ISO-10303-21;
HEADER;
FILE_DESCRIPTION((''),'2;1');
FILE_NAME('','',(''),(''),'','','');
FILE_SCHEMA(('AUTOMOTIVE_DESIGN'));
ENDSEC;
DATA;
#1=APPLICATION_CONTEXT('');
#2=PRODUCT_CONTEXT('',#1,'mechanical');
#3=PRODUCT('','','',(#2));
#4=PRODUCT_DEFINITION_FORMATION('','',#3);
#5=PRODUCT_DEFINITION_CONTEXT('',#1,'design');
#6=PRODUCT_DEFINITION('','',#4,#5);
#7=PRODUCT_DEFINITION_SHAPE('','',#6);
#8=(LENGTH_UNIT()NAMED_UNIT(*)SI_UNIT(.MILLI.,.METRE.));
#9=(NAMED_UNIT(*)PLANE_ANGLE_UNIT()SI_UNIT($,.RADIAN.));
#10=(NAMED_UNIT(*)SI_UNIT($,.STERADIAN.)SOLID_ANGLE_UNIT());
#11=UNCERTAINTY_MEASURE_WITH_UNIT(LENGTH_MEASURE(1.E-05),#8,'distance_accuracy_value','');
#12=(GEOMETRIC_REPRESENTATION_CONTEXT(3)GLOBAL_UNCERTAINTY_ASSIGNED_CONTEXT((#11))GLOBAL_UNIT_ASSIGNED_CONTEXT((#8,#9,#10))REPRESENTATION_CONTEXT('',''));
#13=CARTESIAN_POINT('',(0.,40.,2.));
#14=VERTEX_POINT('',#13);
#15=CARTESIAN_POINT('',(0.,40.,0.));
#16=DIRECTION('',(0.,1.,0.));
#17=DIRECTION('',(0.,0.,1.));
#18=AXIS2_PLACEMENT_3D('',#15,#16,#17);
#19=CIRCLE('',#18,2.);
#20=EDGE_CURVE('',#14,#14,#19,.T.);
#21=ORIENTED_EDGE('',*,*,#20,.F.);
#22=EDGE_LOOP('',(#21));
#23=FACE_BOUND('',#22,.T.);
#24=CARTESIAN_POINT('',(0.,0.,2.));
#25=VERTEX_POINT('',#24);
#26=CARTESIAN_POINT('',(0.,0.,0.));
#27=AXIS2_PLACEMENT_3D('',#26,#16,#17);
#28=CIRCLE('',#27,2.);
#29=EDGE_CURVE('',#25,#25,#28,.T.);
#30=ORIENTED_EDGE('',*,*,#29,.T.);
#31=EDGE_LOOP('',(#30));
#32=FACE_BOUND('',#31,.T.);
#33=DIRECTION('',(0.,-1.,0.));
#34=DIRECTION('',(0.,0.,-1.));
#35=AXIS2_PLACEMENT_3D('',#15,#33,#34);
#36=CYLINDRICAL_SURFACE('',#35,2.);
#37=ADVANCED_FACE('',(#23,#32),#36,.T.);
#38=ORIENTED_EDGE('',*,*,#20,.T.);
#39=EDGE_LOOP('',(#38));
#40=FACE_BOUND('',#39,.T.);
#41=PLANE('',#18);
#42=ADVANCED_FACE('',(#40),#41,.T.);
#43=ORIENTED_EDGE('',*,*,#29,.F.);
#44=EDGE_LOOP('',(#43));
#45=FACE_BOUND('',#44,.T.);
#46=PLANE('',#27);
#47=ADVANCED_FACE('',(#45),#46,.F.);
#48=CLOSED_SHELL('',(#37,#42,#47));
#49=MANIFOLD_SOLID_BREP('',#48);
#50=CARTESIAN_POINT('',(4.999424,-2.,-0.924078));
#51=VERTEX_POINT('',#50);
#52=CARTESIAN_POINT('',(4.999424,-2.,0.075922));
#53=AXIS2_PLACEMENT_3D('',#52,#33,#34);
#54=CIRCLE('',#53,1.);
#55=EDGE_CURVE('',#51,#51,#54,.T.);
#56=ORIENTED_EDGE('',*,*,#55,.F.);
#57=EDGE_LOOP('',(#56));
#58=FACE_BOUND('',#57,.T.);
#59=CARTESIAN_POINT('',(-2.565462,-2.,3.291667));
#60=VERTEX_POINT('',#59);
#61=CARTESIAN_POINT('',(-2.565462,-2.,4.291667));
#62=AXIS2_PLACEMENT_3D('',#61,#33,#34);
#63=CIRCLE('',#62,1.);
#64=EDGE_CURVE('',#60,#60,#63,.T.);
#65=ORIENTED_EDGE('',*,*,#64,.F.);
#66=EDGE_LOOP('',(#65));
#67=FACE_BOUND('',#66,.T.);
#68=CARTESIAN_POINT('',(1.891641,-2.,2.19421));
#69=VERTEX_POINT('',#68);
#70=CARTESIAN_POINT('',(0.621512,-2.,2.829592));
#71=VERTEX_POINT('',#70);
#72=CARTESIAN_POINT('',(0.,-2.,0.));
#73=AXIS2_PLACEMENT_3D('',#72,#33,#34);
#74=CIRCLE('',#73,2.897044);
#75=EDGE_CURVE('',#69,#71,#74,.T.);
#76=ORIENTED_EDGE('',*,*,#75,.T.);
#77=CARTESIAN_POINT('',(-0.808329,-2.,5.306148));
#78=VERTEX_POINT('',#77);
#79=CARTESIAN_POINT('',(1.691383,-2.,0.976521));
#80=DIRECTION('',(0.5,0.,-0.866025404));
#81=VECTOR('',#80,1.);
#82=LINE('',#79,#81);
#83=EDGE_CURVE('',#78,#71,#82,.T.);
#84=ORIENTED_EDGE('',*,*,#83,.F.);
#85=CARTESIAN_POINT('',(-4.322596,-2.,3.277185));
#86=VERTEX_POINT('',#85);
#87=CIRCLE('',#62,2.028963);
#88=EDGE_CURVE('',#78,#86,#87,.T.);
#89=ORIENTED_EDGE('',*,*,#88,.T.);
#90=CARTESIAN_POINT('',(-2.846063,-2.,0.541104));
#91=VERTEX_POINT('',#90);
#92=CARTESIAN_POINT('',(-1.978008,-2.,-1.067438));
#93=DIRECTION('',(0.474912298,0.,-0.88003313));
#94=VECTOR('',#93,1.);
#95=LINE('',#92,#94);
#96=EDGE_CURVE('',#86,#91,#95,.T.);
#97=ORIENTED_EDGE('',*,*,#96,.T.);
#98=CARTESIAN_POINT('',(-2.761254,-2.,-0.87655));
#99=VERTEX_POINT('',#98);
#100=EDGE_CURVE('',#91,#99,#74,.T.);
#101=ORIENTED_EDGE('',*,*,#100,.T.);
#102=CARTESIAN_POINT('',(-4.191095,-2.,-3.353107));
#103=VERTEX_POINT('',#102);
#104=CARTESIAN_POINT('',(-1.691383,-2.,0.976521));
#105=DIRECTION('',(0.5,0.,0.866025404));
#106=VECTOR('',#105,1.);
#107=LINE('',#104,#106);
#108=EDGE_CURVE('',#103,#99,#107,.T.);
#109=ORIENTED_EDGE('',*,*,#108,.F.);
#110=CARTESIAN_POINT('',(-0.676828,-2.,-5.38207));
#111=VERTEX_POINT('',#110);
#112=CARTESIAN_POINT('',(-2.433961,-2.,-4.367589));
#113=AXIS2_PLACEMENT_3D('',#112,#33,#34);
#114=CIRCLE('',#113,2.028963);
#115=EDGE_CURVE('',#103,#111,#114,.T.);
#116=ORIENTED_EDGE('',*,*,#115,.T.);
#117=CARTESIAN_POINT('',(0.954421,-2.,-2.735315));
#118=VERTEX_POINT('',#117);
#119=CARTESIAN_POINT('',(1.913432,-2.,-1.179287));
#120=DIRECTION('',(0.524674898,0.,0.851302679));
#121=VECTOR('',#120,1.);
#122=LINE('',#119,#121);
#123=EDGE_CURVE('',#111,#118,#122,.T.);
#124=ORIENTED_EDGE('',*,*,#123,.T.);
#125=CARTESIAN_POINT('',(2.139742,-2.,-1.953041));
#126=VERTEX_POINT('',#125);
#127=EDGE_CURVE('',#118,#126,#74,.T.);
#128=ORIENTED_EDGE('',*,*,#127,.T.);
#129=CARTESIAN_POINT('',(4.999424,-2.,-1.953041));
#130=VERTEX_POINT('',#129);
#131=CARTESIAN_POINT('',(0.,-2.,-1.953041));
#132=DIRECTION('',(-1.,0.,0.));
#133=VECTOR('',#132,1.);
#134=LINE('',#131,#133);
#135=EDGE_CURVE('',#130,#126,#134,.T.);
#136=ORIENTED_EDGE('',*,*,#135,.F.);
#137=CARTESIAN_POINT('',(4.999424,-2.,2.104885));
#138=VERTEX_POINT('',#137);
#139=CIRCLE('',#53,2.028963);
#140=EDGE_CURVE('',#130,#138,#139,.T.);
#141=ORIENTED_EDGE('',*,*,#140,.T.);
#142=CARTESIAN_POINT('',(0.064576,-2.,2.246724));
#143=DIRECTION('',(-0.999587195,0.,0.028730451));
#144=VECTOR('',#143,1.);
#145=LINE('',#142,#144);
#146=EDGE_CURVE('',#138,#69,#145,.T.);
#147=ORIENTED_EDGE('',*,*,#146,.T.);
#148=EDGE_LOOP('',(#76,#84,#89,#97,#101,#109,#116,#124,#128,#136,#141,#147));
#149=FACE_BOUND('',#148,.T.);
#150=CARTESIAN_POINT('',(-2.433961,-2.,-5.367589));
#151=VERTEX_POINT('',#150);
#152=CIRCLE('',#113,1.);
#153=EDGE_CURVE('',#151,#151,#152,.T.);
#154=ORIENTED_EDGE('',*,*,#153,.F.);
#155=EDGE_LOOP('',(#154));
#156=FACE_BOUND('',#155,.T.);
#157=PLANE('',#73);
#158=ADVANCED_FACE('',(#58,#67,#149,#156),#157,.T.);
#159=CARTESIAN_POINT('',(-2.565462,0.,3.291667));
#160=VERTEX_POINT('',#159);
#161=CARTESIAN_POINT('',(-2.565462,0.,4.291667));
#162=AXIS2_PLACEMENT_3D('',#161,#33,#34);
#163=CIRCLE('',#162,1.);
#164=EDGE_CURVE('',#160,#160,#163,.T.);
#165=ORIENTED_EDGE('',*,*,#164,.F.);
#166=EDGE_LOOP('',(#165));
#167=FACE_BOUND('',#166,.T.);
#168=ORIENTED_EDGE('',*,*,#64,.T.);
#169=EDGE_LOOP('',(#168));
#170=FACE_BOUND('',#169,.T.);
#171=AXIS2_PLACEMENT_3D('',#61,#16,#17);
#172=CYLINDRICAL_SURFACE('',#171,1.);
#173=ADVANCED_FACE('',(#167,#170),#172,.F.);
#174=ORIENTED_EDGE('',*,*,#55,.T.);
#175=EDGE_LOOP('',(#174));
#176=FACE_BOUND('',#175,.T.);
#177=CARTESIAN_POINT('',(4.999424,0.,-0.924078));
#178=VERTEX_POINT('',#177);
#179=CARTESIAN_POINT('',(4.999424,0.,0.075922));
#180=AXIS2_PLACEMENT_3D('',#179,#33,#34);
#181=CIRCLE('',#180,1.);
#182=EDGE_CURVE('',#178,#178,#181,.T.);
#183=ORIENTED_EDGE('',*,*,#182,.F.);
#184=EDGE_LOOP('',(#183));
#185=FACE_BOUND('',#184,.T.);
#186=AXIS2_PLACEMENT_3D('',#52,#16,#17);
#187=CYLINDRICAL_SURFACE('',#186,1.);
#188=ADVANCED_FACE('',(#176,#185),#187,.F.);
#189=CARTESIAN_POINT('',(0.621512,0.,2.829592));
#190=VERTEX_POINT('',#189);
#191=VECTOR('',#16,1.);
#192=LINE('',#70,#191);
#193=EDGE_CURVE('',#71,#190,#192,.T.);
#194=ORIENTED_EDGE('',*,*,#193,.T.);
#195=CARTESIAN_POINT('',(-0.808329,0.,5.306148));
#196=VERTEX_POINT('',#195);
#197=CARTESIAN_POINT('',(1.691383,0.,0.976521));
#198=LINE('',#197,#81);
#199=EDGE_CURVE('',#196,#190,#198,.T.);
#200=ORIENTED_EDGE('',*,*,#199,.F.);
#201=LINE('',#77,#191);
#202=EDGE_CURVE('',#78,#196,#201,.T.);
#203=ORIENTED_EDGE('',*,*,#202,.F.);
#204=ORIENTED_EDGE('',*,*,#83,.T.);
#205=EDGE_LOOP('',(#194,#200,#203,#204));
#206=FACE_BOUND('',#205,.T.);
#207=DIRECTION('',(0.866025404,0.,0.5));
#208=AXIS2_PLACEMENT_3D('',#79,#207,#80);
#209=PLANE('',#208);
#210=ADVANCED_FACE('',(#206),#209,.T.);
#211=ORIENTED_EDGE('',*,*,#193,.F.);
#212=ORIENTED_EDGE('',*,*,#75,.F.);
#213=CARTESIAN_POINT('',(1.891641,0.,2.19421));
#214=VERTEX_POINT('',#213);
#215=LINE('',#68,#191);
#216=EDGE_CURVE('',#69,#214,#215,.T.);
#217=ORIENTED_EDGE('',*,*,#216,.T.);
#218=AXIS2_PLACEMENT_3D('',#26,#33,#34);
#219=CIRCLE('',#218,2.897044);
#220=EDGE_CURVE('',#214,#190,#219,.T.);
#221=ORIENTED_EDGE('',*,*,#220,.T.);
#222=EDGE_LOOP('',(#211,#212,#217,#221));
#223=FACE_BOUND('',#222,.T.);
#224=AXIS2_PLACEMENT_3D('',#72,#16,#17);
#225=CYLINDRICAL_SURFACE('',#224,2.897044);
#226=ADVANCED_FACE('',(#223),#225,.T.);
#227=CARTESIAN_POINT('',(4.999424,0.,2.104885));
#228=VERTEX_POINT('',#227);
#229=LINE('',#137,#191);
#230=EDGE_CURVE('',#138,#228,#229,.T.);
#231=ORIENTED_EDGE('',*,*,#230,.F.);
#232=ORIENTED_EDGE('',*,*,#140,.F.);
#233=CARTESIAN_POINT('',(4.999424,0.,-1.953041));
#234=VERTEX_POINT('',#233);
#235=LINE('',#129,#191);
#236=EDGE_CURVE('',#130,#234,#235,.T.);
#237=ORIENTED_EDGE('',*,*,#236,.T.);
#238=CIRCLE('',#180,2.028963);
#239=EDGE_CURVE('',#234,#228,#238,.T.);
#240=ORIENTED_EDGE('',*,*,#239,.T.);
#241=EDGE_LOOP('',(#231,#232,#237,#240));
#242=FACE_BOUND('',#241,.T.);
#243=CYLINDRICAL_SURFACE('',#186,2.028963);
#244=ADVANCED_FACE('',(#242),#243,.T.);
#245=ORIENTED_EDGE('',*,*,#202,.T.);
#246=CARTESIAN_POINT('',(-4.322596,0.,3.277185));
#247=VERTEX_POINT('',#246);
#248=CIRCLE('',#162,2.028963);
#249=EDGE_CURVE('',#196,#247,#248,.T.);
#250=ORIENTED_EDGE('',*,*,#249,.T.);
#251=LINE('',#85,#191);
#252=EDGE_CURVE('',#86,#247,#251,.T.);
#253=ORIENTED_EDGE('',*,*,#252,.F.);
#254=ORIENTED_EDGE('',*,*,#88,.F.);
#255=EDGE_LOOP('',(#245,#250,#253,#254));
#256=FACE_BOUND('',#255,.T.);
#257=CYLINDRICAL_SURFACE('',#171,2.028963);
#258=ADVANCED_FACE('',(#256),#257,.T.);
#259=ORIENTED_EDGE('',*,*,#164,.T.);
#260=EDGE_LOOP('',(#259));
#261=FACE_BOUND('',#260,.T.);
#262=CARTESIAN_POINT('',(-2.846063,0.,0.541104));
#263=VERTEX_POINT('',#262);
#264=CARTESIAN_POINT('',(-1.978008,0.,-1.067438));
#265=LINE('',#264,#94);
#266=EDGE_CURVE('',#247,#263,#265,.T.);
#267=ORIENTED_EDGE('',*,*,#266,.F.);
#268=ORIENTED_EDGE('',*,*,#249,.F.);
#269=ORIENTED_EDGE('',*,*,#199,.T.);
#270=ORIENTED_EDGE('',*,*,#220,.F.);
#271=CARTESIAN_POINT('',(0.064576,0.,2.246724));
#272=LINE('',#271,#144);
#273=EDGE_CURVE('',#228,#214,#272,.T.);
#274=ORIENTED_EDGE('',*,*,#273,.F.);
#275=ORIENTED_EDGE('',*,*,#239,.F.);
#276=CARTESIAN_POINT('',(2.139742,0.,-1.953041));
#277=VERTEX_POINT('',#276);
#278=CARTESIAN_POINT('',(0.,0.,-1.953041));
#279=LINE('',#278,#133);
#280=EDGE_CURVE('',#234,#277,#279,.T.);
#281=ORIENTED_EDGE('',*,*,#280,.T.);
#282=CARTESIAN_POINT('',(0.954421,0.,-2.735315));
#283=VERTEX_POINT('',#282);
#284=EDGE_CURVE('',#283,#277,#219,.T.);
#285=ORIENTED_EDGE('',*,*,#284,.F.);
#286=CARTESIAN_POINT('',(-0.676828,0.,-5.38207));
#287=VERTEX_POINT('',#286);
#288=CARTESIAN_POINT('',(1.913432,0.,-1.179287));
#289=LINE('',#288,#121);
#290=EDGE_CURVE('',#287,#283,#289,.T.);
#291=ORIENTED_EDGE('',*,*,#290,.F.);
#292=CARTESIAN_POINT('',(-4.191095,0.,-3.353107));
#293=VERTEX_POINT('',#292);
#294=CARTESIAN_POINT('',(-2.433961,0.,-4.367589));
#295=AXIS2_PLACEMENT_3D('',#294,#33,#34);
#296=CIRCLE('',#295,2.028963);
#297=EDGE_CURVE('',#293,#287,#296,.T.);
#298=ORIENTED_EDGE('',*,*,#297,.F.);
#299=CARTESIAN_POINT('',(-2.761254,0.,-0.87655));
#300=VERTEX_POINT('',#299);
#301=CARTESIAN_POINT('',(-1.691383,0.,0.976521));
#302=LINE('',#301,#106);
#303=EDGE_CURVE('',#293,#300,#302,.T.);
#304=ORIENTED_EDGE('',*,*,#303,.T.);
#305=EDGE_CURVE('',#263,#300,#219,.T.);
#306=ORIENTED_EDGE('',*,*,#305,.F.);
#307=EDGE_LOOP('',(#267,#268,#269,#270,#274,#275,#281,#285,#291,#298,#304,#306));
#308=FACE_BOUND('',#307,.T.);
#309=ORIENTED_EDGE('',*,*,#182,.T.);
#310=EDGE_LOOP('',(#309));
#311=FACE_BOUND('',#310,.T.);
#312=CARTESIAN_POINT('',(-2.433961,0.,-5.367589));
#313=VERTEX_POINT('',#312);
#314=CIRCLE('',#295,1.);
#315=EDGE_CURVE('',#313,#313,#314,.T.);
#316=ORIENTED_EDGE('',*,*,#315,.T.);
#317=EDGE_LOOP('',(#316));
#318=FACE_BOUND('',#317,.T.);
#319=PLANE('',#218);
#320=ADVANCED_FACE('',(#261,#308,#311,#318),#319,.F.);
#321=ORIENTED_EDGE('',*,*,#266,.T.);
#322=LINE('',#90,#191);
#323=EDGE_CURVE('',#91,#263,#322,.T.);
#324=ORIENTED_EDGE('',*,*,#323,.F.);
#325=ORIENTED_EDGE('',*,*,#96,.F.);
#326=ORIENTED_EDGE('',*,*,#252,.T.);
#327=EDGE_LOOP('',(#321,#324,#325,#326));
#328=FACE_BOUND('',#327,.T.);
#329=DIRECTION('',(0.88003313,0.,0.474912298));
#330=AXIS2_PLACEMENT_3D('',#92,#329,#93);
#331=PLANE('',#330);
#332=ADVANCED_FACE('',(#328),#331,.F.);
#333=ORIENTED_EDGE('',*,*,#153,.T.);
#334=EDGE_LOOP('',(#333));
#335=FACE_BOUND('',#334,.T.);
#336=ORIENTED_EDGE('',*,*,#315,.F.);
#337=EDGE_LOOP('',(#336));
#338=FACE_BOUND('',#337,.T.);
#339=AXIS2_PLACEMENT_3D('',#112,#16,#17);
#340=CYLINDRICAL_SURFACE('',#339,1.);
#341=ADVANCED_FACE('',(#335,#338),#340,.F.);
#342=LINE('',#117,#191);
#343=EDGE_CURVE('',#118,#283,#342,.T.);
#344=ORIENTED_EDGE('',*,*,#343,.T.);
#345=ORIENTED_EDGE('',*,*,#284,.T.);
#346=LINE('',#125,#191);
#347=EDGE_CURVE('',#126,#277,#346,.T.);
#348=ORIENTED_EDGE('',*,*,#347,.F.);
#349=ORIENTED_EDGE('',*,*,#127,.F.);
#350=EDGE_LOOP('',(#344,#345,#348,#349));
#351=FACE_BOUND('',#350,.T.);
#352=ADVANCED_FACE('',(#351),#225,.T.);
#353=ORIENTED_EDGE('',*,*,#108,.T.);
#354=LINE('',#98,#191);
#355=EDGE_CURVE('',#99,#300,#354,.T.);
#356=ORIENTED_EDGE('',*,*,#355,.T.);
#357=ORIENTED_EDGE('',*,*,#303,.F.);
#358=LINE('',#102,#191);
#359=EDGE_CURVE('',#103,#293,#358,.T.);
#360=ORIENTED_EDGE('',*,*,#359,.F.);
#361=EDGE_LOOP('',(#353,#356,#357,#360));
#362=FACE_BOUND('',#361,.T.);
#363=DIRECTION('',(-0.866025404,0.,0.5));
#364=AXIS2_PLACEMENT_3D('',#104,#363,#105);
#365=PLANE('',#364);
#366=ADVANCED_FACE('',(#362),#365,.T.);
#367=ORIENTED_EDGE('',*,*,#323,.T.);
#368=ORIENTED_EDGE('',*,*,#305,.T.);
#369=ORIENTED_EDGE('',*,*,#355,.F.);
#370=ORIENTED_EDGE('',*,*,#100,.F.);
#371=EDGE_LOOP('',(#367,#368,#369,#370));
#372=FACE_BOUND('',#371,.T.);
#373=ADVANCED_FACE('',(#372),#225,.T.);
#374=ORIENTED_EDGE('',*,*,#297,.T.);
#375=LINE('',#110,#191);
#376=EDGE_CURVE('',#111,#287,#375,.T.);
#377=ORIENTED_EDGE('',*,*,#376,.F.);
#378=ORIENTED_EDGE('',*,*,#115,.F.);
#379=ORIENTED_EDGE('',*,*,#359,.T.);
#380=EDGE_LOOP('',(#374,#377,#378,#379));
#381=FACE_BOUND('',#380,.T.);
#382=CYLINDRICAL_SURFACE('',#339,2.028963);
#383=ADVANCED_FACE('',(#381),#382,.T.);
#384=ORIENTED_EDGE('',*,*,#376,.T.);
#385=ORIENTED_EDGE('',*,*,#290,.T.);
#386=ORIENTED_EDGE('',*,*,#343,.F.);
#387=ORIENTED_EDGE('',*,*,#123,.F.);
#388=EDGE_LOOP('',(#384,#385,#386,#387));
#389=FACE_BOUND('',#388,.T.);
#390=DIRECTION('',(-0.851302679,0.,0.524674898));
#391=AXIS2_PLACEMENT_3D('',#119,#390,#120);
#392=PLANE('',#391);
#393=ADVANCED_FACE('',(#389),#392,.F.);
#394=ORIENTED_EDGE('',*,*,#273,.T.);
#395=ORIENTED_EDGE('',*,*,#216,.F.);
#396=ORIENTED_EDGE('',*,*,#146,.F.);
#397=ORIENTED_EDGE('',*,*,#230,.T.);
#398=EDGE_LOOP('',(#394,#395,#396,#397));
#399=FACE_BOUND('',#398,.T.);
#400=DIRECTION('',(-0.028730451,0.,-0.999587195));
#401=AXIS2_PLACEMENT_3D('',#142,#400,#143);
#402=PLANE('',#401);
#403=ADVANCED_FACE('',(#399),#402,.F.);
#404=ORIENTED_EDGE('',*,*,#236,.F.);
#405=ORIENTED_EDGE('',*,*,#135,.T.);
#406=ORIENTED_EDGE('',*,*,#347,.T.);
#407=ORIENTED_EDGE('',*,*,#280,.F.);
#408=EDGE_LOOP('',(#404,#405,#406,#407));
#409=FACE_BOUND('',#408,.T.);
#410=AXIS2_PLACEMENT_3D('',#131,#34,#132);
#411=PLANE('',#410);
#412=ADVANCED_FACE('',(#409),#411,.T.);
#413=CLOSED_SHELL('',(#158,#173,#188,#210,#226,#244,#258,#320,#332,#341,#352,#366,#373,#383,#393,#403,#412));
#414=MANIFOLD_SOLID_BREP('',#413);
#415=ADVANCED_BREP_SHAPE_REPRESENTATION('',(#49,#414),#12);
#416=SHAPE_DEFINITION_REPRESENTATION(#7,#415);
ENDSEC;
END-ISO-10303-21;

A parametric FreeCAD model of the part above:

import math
import FreeCAD as App
import Part
import Sketcher
from FreeCAD import Vector
Q = App.Units.Quantity

doc = App.newDocument("Part")
params = doc.addObject("Spreadsheet::Sheet", "Params")
for row, (alias, value) in enumerate([
    ("sketch1_diameter", "4 mm"),
    ("pad1_length", "40 mm"),
    ("sketch2_diameter", "2 mm"),
    ("pad2_length", "2 mm"),
], start=1):
    params.set(f"A{row}", alias)
    params.set(f"B{row}", "=" + value)
    params.setAlias(f"B{row}", alias)

body = doc.addObject("PartDesign::Body", "Body")

sketch1 = body.newObject("Sketcher::SketchObject", "Sketch")
sketch1.AttachmentSupport = (doc.getObject("XZ_Plane"), [""])
sketch1.MapMode = "FlatFace"
sketch1.addGeometry(Part.Circle(Vector(0, 0, 0), Vector(0, 0, 1), 2), False)
sketch1.addConstraint(Sketcher.Constraint("Coincident", 0, 3, -1, 1))
sketch1.addConstraint(Sketcher.Constraint("Diameter", 0, Q("4 mm")))
sketch1.setExpression("Constraints[1]", "Params.sketch1_diameter")
pad1 = body.newObject("PartDesign::Pad", "Pad")
pad1.Profile = sketch1
pad1.setExpression("Length", "Params.pad1_length")
pad1.Reversed = True
body2 = doc.addObject("PartDesign::Body", "Body001")

sketch2 = body2.newObject("Sketcher::SketchObject", "Sketch001")
sketch2.AttachmentSupport = (doc.getObject("XZ_Plane001"), [""])
sketch2.MapMode = "FlatFace"
sketch2.addGeometry(Part.LineSegment(Vector(2.1, -2, 0), Vector(5, -2, 0)), False)
sketch2.addGeometry(Part.ArcOfCircle(Part.Circle(Vector(5, 0.1, 0), Vector(0, 0, 1), 2), math.radians(-90), math.radians(90)), False)
sketch2.addGeometry(Part.LineSegment(Vector(5, 2.1, 0), Vector(1.9, 2.2, 0)), False)
sketch2.addGeometry(Part.ArcOfCircle(Part.Circle(Vector(0, 0, 0), Vector(0, 0, 1), 2.9), math.radians(49), math.radians(78)), False)
sketch2.addGeometry(Part.LineSegment(Vector(0.6, 2.8, 0), Vector(-0.8, 5.3, 0)), False)
sketch2.addGeometry(Part.ArcOfCircle(Part.Circle(Vector(-2.6, 4.3, 0), Vector(0, 0, 1), 2), math.radians(30), math.radians(210)), False)
sketch2.addGeometry(Part.LineSegment(Vector(-4.3, 3.3, 0), Vector(-2.8, 0.5, 0)), False)
sketch2.addGeometry(Part.ArcOfCircle(Part.Circle(Vector(0, 0, 0), Vector(0, 0, 1), 2.9), math.radians(169), math.radians(198)), False)
sketch2.addGeometry(Part.LineSegment(Vector(-2.8, -0.9, 0), Vector(-4.2, -3.4, 0)), False)
sketch2.addGeometry(Part.ArcOfCircle(Part.Circle(Vector(-2.4, -4.4, 0), Vector(0, 0, 1), 2), math.radians(150), math.radians(330)), False)
sketch2.addGeometry(Part.LineSegment(Vector(-0.7, -5.4, 0), Vector(1, -2.7, 0)), False)
sketch2.addGeometry(Part.ArcOfCircle(Part.Circle(Vector(0, 0, 0), Vector(0, 0, 1), 2.9), math.radians(-71), math.radians(-42)), False)
sketch2.addGeometry(Part.Circle(Vector(-2.4, -4.4, 0), Vector(0, 0, 1), 1), False)
sketch2.addGeometry(Part.Circle(Vector(-2.6, 4.3, 0), Vector(0, 0, 1), 1), False)
sketch2.addGeometry(Part.Circle(Vector(5, 0.1, 0), Vector(0, 0, 1), 1), False)
sketch2.addConstraint(Sketcher.Constraint("Tangent", 0, 2, 1, 1))
sketch2.addConstraint(Sketcher.Constraint("Coincident", 1, 2, 2, 1))
sketch2.addConstraint(Sketcher.Constraint("Coincident", 2, 2, 3, 1))
sketch2.addConstraint(Sketcher.Constraint("Coincident", 3, 2, 4, 1))
sketch2.addConstraint(Sketcher.Constraint("Tangent", 4, 2, 5, 1))
sketch2.addConstraint(Sketcher.Constraint("Coincident", 5, 2, 6, 1))
sketch2.addConstraint(Sketcher.Constraint("Coincident", 6, 2, 7, 1))
sketch2.addConstraint(Sketcher.Constraint("Coincident", 7, 2, 8, 1))
sketch2.addConstraint(Sketcher.Constraint("Tangent", 8, 2, 9, 1))
sketch2.addConstraint(Sketcher.Constraint("Coincident", 9, 2, 10, 1))
sketch2.addConstraint(Sketcher.Constraint("Coincident", 10, 2, 11, 1))
sketch2.addConstraint(Sketcher.Constraint("Coincident", 11, 2, 0, 1))
sketch2.addConstraint(Sketcher.Constraint("Horizontal", 0))
sketch2.addConstraint(Sketcher.Constraint("Coincident", 3, 3, -1, 1))
sketch2.addConstraint(Sketcher.Constraint("Coincident", 7, 3, -1, 1))
sketch2.addConstraint(Sketcher.Constraint("Coincident", 11, 3, -1, 1))
sketch2.addConstraint(Sketcher.Constraint("Coincident", 12, 3, 9, 3))
sketch2.addConstraint(Sketcher.Constraint("Coincident", 13, 3, 5, 3))
sketch2.addConstraint(Sketcher.Constraint("Coincident", 14, 3, 1, 3))
sketch2.addConstraint(Sketcher.Constraint("Equal", 1, 5))
sketch2.addConstraint(Sketcher.Constraint("Equal", 3, 7))
sketch2.addConstraint(Sketcher.Constraint("Equal", 5, 9))
sketch2.addConstraint(Sketcher.Constraint("Equal", 7, 11))
sketch2.addConstraint(Sketcher.Constraint("Equal", 12, 13))
sketch2.addConstraint(Sketcher.Constraint("Equal", 13, 14))
sketch2.addConstraint(Sketcher.Constraint("Vertical", 0, 2, 1, 2))
sketch2.addConstraint(Sketcher.Constraint("Equal", 2, 6))
sketch2.addConstraint(Sketcher.Constraint("Equal", 4, 8))
sketch2.addConstraint(Sketcher.Constraint("Equal", 6, 10))
sketch2.addConstraint(Sketcher.Constraint("Diameter", 12, Q("2 mm")))
sketch2.addConstraint(Sketcher.Constraint("Angle", 4, Q("120 deg")))
sketch2.addConstraint(Sketcher.Constraint("Angle", 8, Q("-120 deg")))
sketch2.addConstraint(Sketcher.Constraint("Radius", 1, Q("2.028963 mm")))
sketch2.addConstraint(Sketcher.Constraint("Radius", 3, Q("2.897044 mm")))
sketch2.addConstraint(Sketcher.Constraint("DistanceX", 0, 1, 0, 2, Q("2.859681 mm")))
sketch2.addConstraint(Sketcher.Constraint("DistanceX", 5, 3, 9, 3, Q("0.131501 mm")))
sketch2.addConstraint(Sketcher.Constraint("DistanceX", 6, 2, 5, 3, Q("0.2806 mm")))
sketch2.addConstraint(Sketcher.Constraint("Distance", 4, Q("2.859681 mm")))
sketch2.addConstraint(Sketcher.Constraint("DistanceX", 9, 3, -1, 1, Q("2.433961 mm")))
sketch2.addConstraint(Sketcher.Constraint("DistanceY", 0, 2, -1, 1, Q("1.953041 mm")))
sketch2.addConstraint(Sketcher.Constraint("DistanceX", -1, 1, 2, 2, Q("1.891641 mm")))
sketch2.addConstraint(Sketcher.Constraint("DistanceY", 9, 2, -1, 1, Q("5.38207 mm")))
sketch2.setExpression("Constraints[29]", "Params.sketch2_diameter")
pad2 = body2.newObject("PartDesign::Pad", "Pad001")
pad2.Profile = sketch2
pad2.setExpression("Length", "Params.pad2_length")

doc.recompute()
